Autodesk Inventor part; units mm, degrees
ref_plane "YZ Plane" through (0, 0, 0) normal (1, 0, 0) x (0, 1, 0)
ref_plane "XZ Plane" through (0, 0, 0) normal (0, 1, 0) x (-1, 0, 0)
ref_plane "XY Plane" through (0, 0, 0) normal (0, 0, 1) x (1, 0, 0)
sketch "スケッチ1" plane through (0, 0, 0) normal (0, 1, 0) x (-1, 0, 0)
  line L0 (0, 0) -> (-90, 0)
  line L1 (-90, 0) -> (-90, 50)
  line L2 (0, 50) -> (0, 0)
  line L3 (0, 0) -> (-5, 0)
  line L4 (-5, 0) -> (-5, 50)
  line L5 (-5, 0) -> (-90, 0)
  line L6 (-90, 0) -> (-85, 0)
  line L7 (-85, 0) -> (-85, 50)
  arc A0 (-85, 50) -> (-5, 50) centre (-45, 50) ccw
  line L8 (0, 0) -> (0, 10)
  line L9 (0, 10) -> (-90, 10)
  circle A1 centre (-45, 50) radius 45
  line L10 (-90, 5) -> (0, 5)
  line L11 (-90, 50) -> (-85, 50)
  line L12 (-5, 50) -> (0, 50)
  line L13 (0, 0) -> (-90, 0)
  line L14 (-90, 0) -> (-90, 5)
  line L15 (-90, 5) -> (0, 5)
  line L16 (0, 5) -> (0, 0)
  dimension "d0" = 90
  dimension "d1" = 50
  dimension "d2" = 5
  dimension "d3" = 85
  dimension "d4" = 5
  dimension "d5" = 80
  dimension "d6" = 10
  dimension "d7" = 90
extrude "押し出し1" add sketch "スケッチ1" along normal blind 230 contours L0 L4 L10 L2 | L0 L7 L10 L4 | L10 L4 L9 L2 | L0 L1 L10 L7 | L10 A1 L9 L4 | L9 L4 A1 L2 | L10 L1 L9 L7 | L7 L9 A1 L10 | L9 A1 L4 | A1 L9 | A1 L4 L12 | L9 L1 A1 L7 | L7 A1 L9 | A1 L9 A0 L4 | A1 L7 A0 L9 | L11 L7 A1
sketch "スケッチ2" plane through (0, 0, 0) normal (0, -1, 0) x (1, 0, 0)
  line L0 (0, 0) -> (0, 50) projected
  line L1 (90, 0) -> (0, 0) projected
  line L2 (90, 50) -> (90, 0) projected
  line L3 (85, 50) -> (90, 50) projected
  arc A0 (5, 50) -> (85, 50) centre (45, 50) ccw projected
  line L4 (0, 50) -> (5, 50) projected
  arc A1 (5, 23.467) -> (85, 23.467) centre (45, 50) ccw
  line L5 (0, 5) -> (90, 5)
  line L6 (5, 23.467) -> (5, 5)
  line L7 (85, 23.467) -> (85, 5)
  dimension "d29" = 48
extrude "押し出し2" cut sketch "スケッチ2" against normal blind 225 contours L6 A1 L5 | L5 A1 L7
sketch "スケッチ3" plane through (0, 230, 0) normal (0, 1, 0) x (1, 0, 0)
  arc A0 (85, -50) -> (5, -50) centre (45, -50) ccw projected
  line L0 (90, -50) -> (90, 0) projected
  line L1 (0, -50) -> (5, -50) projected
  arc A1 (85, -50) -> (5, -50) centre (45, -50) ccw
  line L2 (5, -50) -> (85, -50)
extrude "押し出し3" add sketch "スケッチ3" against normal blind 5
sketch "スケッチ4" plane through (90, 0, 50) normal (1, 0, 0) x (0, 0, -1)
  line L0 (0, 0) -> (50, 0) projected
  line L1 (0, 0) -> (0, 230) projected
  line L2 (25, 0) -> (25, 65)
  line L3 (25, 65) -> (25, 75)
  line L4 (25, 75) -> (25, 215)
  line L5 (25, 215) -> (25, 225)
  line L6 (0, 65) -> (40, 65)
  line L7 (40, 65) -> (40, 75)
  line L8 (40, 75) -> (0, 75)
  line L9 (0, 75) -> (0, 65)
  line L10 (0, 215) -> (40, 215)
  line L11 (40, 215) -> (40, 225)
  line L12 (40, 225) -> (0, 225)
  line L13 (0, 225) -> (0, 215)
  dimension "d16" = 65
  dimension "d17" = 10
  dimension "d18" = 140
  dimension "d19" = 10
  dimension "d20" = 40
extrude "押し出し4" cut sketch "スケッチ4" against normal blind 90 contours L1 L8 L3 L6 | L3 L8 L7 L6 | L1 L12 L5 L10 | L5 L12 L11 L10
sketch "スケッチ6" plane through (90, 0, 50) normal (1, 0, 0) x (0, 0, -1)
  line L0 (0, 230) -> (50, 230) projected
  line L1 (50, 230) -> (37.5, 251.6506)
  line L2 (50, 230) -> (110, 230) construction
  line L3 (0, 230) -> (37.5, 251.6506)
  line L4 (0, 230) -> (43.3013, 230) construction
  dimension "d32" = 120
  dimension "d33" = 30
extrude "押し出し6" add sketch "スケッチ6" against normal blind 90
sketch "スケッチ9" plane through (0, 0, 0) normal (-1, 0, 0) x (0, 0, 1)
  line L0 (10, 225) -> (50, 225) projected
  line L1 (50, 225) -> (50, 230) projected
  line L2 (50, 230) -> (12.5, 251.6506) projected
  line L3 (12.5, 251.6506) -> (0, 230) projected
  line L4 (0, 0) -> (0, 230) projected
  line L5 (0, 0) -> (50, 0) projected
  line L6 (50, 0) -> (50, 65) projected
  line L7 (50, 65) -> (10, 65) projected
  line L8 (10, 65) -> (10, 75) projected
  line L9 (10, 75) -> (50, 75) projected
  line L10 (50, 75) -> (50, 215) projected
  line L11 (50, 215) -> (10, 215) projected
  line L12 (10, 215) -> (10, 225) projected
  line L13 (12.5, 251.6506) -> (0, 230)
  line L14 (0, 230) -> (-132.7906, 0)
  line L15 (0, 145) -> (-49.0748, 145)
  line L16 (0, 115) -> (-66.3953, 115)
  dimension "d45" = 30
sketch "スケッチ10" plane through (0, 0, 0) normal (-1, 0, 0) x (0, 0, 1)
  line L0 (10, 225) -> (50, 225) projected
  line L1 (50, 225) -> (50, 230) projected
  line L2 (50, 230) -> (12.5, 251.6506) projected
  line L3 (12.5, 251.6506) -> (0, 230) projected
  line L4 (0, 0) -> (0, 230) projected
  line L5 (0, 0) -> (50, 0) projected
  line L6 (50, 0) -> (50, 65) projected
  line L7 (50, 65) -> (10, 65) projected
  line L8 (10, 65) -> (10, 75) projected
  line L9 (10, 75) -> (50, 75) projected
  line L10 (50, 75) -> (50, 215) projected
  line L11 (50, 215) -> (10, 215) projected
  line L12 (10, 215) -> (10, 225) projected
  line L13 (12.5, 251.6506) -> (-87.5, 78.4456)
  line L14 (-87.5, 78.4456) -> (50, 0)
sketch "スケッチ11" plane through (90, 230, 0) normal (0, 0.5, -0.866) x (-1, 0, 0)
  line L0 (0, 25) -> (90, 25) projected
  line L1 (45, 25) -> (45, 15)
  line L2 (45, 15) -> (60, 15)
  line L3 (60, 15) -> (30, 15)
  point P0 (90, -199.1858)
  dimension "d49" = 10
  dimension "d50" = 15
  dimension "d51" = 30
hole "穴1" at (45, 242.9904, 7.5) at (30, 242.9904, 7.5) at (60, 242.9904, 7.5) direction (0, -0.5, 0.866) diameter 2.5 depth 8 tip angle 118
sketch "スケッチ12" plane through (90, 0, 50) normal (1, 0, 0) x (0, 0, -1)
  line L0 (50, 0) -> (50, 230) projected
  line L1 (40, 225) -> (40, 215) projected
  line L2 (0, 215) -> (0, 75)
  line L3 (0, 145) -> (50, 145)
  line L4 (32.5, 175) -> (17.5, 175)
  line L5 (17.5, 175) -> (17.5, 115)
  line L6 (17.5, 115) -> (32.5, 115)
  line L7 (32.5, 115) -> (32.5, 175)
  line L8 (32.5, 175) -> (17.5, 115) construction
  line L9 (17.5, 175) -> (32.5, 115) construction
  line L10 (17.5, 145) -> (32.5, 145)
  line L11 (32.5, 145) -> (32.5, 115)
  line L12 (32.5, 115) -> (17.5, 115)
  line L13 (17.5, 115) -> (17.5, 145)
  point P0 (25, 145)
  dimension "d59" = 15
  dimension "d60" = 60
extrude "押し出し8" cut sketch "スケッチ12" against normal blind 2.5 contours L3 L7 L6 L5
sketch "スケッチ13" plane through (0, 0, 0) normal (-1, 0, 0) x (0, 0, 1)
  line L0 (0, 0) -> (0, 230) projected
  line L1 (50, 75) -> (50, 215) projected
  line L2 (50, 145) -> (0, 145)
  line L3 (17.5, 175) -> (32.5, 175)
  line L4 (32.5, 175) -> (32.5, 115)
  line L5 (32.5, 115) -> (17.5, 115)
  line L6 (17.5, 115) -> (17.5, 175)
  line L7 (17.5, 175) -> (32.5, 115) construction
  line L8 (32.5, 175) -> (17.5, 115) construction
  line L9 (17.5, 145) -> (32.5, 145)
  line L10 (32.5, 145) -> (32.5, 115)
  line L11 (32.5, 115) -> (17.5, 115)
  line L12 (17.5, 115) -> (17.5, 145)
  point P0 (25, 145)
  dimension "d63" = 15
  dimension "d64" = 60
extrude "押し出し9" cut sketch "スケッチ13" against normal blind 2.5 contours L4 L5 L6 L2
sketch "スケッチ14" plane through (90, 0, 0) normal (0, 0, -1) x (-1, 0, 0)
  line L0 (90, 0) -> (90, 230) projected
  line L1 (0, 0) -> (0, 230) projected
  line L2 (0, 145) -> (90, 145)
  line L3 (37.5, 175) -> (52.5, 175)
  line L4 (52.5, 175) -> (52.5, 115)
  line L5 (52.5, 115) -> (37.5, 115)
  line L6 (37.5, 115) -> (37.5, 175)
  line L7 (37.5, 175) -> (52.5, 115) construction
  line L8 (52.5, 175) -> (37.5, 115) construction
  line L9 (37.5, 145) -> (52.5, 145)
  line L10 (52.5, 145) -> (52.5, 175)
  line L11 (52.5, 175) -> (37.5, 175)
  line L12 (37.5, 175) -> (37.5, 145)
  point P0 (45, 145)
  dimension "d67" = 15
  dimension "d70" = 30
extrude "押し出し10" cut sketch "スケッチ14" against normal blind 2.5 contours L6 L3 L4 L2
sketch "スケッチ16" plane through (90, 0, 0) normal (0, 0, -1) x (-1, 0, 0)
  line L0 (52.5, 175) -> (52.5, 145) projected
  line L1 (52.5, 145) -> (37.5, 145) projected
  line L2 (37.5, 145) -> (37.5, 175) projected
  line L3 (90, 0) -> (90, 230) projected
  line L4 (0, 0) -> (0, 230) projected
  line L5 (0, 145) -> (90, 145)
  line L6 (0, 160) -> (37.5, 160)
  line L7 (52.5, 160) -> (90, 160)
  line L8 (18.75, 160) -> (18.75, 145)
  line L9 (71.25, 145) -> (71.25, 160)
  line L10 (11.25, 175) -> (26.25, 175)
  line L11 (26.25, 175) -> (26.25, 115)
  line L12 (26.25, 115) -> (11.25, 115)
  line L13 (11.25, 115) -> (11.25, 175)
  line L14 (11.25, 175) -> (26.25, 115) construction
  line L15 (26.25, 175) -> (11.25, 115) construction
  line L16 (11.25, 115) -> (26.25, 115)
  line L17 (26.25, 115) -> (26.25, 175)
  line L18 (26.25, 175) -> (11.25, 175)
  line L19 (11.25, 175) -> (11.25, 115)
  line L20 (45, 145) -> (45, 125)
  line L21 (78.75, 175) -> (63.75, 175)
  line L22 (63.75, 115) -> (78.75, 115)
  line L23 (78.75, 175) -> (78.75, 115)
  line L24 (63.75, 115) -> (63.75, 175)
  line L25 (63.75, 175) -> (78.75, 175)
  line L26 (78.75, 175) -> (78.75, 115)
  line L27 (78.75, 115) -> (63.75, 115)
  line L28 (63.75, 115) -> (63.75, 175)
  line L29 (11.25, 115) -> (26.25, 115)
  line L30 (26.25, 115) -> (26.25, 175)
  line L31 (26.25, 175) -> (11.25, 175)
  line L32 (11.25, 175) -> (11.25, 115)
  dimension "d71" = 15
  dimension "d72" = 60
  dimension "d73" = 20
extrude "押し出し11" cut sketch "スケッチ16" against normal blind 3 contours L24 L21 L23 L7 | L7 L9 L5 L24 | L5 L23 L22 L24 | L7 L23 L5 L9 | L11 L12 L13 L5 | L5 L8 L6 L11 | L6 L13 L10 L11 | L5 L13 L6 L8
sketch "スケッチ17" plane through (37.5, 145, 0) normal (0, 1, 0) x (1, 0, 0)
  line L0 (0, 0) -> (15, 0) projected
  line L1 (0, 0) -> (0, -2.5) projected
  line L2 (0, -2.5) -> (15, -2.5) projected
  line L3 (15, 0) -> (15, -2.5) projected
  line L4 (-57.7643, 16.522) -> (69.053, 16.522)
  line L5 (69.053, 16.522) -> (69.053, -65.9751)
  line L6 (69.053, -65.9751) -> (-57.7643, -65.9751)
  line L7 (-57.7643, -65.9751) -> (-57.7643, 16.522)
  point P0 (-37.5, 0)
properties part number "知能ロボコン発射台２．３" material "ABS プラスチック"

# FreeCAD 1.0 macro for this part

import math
import FreeCAD as App
import Part
import Sketcher
Q = App.Units.Quantity

doc = App.newDocument("Part")
body = doc.addObject("PartDesign::Body", "Body")

sketch1 = body.newObject("Sketcher::SketchObject", "Sketch")
sketch1.AttachmentSupport = (doc.getObject("XZ_Plane"), [""])
sketch1.MapMode = "FlatFace"
sketch1.addGeometry([
    Part.LineSegment(App.Vector(0, 0, 0), App.Vector(0, 50, 0)),
    Part.LineSegment(App.Vector(0, 50, 0), App.Vector(5, 50, 0)),
    Part.ArcOfCircle(Part.Circle(App.Vector(45, 50, 0), App.Vector(0, 0, 1), 40), math.radians(180), math.radians(360)),
    Part.LineSegment(App.Vector(85, 50, 0), App.Vector(90, 50, 0)),
    Part.LineSegment(App.Vector(90, 50, 0), App.Vector(90, 0, 0)),
    Part.LineSegment(App.Vector(90, 0, 0), App.Vector(0, 0, 0)),
], False)
sketch1.addConstraint([
    Sketcher.Constraint("Coincident", 0, 2, 1, 1),
    Sketcher.Constraint("Coincident", 1, 2, 2, 1),
    Sketcher.Constraint("Coincident", 2, 2, 3, 1),
    Sketcher.Constraint("Coincident", 3, 2, 4, 1),
    Sketcher.Constraint("Coincident", 4, 2, 5, 1),
    Sketcher.Constraint("Coincident", 5, 2, 0, 1),
    Sketcher.Constraint("Vertical", 0),
    Sketcher.Constraint("Horizontal", 1),
    Sketcher.Constraint("Horizontal", 3),
    Sketcher.Constraint("Vertical", 4),
    Sketcher.Constraint("Horizontal", 5),
    Sketcher.Constraint("Coincident", 5, 2, -1, 1),
    Sketcher.Constraint("Horizontal", 2, 3, 0, 2),
    Sketcher.Constraint("Horizontal", 1, 2, 2, 2),
    Sketcher.Constraint("Equal", 1, 3),
    Sketcher.Constraint("Radius", 2, Q("40 mm")),
    Sketcher.Constraint("DistanceX", 1, 1, 1, 2, Q("5 mm")),
    Sketcher.Constraint("DistanceY", 0, 1, 0, 2, Q("50 mm")),
])
pad1 = body.newObject("PartDesign::Pad", "Pad")
pad1.Profile = sketch1
pad1.Length = 230
pad1.Reversed = True

sketch2 = body.newObject("Sketcher::SketchObject", "Sketch001")
sketch2.AttachmentSupport = (doc.getObject("XZ_Plane"), [""])
sketch2.MapMode = "FlatFace"
sketch2.addGeometry([
    Part.LineSegment(App.Vector(5, 23, 0), App.Vector(5, 5, 0)),
    Part.LineSegment(App.Vector(5, 5, 0), App.Vector(28, 5, 0)),
    Part.ArcOfCircle(Part.Circle(App.Vector(45, 50, 0), App.Vector(0, 0, 1), 48), math.radians(-146), math.radians(-110)),
    Part.LineSegment(App.Vector(62, 5, 0), App.Vector(85, 5, 0)),
    Part.LineSegment(App.Vector(85, 5, 0), App.Vector(85, 23, 0)),
    Part.ArcOfCircle(Part.Circle(App.Vector(45, 50, 0), App.Vector(0, 0, 1), 48), math.radians(-70), math.radians(-34)),
], False)
sketch2.addConstraint([
    Sketcher.Constraint("Coincident", 0, 2, 1, 1),
    Sketcher.Constraint("Coincident", 1, 2, 2, 2),
    Sketcher.Constraint("Coincident", 2, 1, 0, 1),
    Sketcher.Constraint("Coincident", 3, 2, 4, 1),
    Sketcher.Constraint("Coincident", 4, 2, 5, 2),
    Sketcher.Constraint("Coincident", 5, 1, 3, 1),
    Sketcher.Constraint("Vertical", 0),
    Sketcher.Constraint("Horizontal", 1),
    Sketcher.Constraint("Horizontal", 3),
    Sketcher.Constraint("Vertical", 4),
    Sketcher.Constraint("Coincident", 5, 3, 2, 3),
    Sketcher.Constraint("Equal", 2, 5),
    Sketcher.Constraint("Horizontal", 1, 2, 3, 2),
    Sketcher.Constraint("Horizontal", 2, 1, 4, 2),
    Sketcher.Constraint("Radius", 2, Q("48 mm")),
    Sketcher.Constraint("DistanceX", -1, 1, 2, 3, Q("45 mm")),
    Sketcher.Constraint("DistanceY", -1, 1, 2, 3, Q("50 mm")),
    Sketcher.Constraint("DistanceX", -1, 1, 0, 2, Q("5 mm")),
    Sketcher.Constraint("DistanceY", -1, 1, 0, 2, Q("5 mm")),
])
pocket1 = body.newObject("PartDesign::Pocket", "Pocket")
pocket1.Profile = sketch2
pocket1.Length = 225

sketch3 = body.newObject("Sketcher::SketchObject", "Sketch002")
sketch3.AttachmentSupport = (doc.getObject("XZ_Plane"), [""])
sketch3.MapMode = "FlatFace"
sketch3.AttachmentOffset = App.Placement(App.Vector(0, 0, -230), App.Rotation())
sketch3.addGeometry([
    Part.LineSegment(App.Vector(5, 50, 0), App.Vector(85, 50, 0)),
    Part.ArcOfCircle(Part.Circle(App.Vector(45, 50, 0), App.Vector(0, 0, 1), 40), math.radians(180), math.radians(360)),
], False)
sketch3.addConstraint([
    Sketcher.Constraint("Coincident", 0, 1, 1, 1),
    Sketcher.Constraint("Coincident", 1, 2, 0, 2),
    Sketcher.Constraint("Horizontal", 0),
    Sketcher.Constraint("Horizontal", 1, 3, 0, 1),
    Sketcher.Constraint("Radius", 1, Q("40 mm")),
    Sketcher.Constraint("DistanceX", -1, 1, 1, 3, Q("45 mm")),
    Sketcher.Constraint("DistanceY", -1, 1, 1, 3, Q("50 mm")),
])
pad2 = body.newObject("PartDesign::Pad", "Pad001")
pad2.Profile = sketch3
pad2.Length = 5

sketch4 = body.newObject("Sketcher::SketchObject", "Sketch003")
sketch4.AttachmentSupport = (doc.getObject("YZ_Plane"), [""])
sketch4.MapMode = "FlatFace"
sketch4.AttachmentOffset = App.Placement(App.Vector(0, 0, 90), App.Rotation())
sketch4.addGeometry([
    Part.LineSegment(App.Vector(75, 50, 0), App.Vector(65, 50, 0)),
    Part.LineSegment(App.Vector(65, 50, 0), App.Vector(65, 10, 0)),
    Part.LineSegment(App.Vector(65, 10, 0), App.Vector(75, 10, 0)),
    Part.LineSegment(App.Vector(75, 10, 0), App.Vector(75, 50, 0)),
    Part.LineSegment(App.Vector(225, 50, 0), App.Vector(215, 50, 0)),
    Part.LineSegment(App.Vector(215, 50, 0), App.Vector(215, 10, 0)),
    Part.LineSegment(App.Vector(215, 10, 0), App.Vector(225, 10, 0)),
    Part.LineSegment(App.Vector(225, 10, 0), App.Vector(225, 50, 0)),
], False)
sketch4.addConstraint([
    Sketcher.Constraint("Coincident", 0, 2, 1, 1),
    Sketcher.Constraint("Coincident", 1, 2, 2, 1),
    Sketcher.Constraint("Coincident", 2, 2, 3, 1),
    Sketcher.Constraint("Coincident", 3, 2, 0, 1),
    Sketcher.Constraint("Coincident", 4, 2, 5, 1),
    Sketcher.Constraint("Coincident", 5, 2, 6, 1),
    Sketcher.Constraint("Coincident", 6, 2, 7, 1),
    Sketcher.Constraint("Coincident", 7, 2, 4, 1),
    Sketcher.Constraint("Horizontal", 0),
    Sketcher.Constraint("Vertical", 1),
    Sketcher.Constraint("Horizontal", 2),
    Sketcher.Constraint("Vertical", 3),
    Sketcher.Constraint("Horizontal", 4),
    Sketcher.Constraint("Vertical", 5),
    Sketcher.Constraint("Horizontal", 6),
    Sketcher.Constraint("Vertical", 7),
    Sketcher.Constraint("Horizontal", 3, 2, 4, 2),
    Sketcher.Constraint("Horizontal", 2, 2, 5, 2),
    Sketcher.Constraint("Equal", 2, 4),
    Sketcher.Constraint("DistanceX", 0, 2, 0, 1, Q("10 mm")),
    Sketcher.Constraint("DistanceY", 1, 2, 1, 1, Q("40 mm")),
    Sketcher.Constraint("DistanceX", -1, 1, 0, 2, Q("65 mm")),
    Sketcher.Constraint("DistanceY", -1, 1, 1, 2, Q("10 mm")),
    Sketcher.Constraint("DistanceX", 3, 2, 4, 2, Q("140 mm")),
])
pocket2 = body.newObject("PartDesign::Pocket", "Pocket001")
pocket2.Profile = sketch4
pocket2.Length = 90

sketch5 = body.newObject("Sketcher::SketchObject", "Sketch004")
sketch5.AttachmentSupport = (doc.getObject("YZ_Plane"), [""])
sketch5.MapMode = "FlatFace"
sketch5.AttachmentOffset = App.Placement(App.Vector(0, 0, 90), App.Rotation())
sketch5.addGeometry([
    Part.LineSegment(App.Vector(252, 12, 0), App.Vector(230, 50, 0)),
    Part.LineSegment(App.Vector(230, 50, 0), App.Vector(230, 0, 0)),
    Part.LineSegment(App.Vector(230, 0, 0), App.Vector(252, 12, 0)),
], False)
sketch5.addConstraint([
    Sketcher.Constraint("Coincident", 0, 2, 1, 1),
    Sketcher.Constraint("Coincident", 1, 2, 2, 1),
    Sketcher.Constraint("Coincident", 2, 2, 0, 1),
    Sketcher.Constraint("Vertical", 1),
    Sketcher.Constraint("PointOnObject", 1, 2, -1),
    Sketcher.Constraint("Perpendicular", 0, 2),
    Sketcher.Constraint("Angle", 0, Q("120 deg")),
    Sketcher.Constraint("DistanceY", 1, 2, 1, 1, Q("50 mm")),
    Sketcher.Constraint("DistanceX", -1, 1, 0, 2, Q("230 mm")),
])
pad3 = body.newObject("PartDesign::Pad", "Pad002")
pad3.Profile = sketch5
pad3.Length = 90
pad3.Reversed = True

sketch6 = body.newObject("Sketcher::SketchObject", "Sketch005")
sketch6.Placement = App.Placement(App.Vector(0, 57.500005, -99.59293), App.Rotation(App.Vector(0, 0.866025404, 0.5), App.Vector(1, 0, 0), App.Vector(0, 0.5, -0.866025404), "ZXY"))
sketch6.addGeometry([
    Part.Circle(App.Vector(214.2, 45, 0), App.Vector(0, 0, 1), 1.2),
    Part.Circle(App.Vector(214.2, 30, 0), App.Vector(0, 0, 1), 1.2),
    Part.Circle(App.Vector(214.2, 60, 0), App.Vector(0, 0, 1), 1.2),
], False)
sketch6.addConstraint([
    Sketcher.Constraint("Equal", 0, 1),
    Sketcher.Constraint("Equal", 1, 2),
    Sketcher.Constraint("Vertical", 0, 3, 1, 3),
    Sketcher.Constraint("Vertical", 1, 3, 2, 3),
    Sketcher.Constraint("Diameter", 0, Q("2.5 mm")),
    Sketcher.Constraint("DistanceY", -1, 1, 0, 3, Q("45 mm")),
    Sketcher.Constraint("DistanceY", -1, 1, 1, 3, Q("30 mm")),
    Sketcher.Constraint("DistanceY", -1, 1, 2, 3, Q("60 mm")),
    Sketcher.Constraint("DistanceX", -1, 1, 0, 3, Q("214.1859 mm")),
])
doc.recompute()
hole = body.newObject("PartDesign::Hole", "Hole")
hole.Profile = sketch6
hole.ThreadType = "None"
hole.Diameter = 2.5
hole.DepthType = "Dimension"
hole.Depth = 8
hole.DrillPoint = "Angled"
hole.DrillPointAngle = 118

sketch7 = body.newObject("Sketcher::SketchObject", "Sketch006")
sketch7.AttachmentSupport = (doc.getObject("YZ_Plane"), [""])
sketch7.MapMode = "FlatFace"
sketch7.AttachmentOffset = App.Placement(App.Vector(0, 0, 90), App.Rotation())
sketch7.addGeometry([
    Part.LineSegment(App.Vector(145, 18, 0), App.Vector(145, 32, 0)),
    Part.LineSegment(App.Vector(145, 32, 0), App.Vector(115, 32, 0)),
    Part.LineSegment(App.Vector(115, 32, 0), App.Vector(115, 18, 0)),
    Part.LineSegment(App.Vector(115, 18, 0), App.Vector(145, 18, 0)),
], False)
sketch7.addConstraint([
    Sketcher.Constraint("Coincident", 0, 2, 1, 1),
    Sketcher.Constraint("Coincident", 1, 2, 2, 1),
    Sketcher.Constraint("Coincident", 2, 2, 3, 1),
    Sketcher.Constraint("Coincident", 3, 2, 0, 1),
    Sketcher.Constraint("Vertical", 0),
    Sketcher.Constraint("Horizontal", 1),
    Sketcher.Constraint("Vertical", 2),
    Sketcher.Constraint("Horizontal", 3),
    Sketcher.Constraint("DistanceY", 0, 1, 0, 2, Q("15 mm")),
    Sketcher.Constraint("DistanceX", 1, 2, 1, 1, Q("30 mm")),
    Sketcher.Constraint("DistanceX", -1, 1, 0, 2, Q("145 mm")),
    Sketcher.Constraint("DistanceY", -1, 1, 0, 2, Q("32.5 mm")),
])
pocket3 = body.newObject("PartDesign::Pocket", "Pocket002")
pocket3.Profile = sketch7
pocket3.Length = 2.5

sketch8 = body.newObject("Sketcher::SketchObject", "Sketch007")
sketch8.AttachmentSupport = (doc.getObject("YZ_Plane"), [""])
sketch8.MapMode = "FlatFace"
sketch8.addGeometry([
    Part.LineSegment(App.Vector(115, 32, 0), App.Vector(145, 32, 0)),
    Part.LineSegment(App.Vector(145, 32, 0), App.Vector(145, 18, 0)),
    Part.LineSegment(App.Vector(145, 18, 0), App.Vector(115, 18, 0)),
    Part.LineSegment(App.Vector(115, 18, 0), App.Vector(115, 32, 0)),
], False)
sketch8.addConstraint([
    Sketcher.Constraint("Coincident", 0, 2, 1, 1),
    Sketcher.Constraint("Coincident", 1, 2, 2, 1),
    Sketcher.Constraint("Coincident", 2, 2, 3, 1),
    Sketcher.Constraint("Coincident", 3, 2, 0, 1),
    Sketcher.Constraint("Horizontal", 0),
    Sketcher.Constraint("Vertical", 1),
    Sketcher.Constraint("Horizontal", 2),
    Sketcher.Constraint("Vertical", 3),
    Sketcher.Constraint("DistanceY", 1, 2, 1, 1, Q("15 mm")),
    Sketcher.Constraint("DistanceX", 0, 1, 0, 2, Q("30 mm")),
    Sketcher.Constraint("DistanceX", -1, 1, 0, 2, Q("145 mm")),
    Sketcher.Constraint("DistanceY", -1, 1, 0, 2, Q("32.5 mm")),
])
pocket4 = body.newObject("PartDesign::Pocket", "Pocket003")
pocket4.Profile = sketch8
pocket4.Length = 2.5
pocket4.Reversed = True

sketch9 = body.newObject("Sketcher::SketchObject", "Sketch008")
sketch9.AttachmentSupport = (doc.getObject("XY_Plane"), [""])
sketch9.MapMode = "FlatFace"
sketch9.addGeometry([
    Part.LineSegment(App.Vector(52, 175, 0), App.Vector(52, 145, 0)),
    Part.LineSegment(App.Vector(52, 145, 0), App.Vector(38, 145, 0)),
    Part.LineSegment(App.Vector(38, 145, 0), App.Vector(38, 175, 0)),
    Part.LineSegment(App.Vector(38, 175, 0), App.Vector(52, 175, 0)),
], False)
sketch9.addConstraint([
    Sketcher.Constraint("Coincident", 0, 2, 1, 1),
    Sketcher.Constraint("Coincident", 1, 2, 2, 1),
    Sketcher.Constraint("Coincident", 2, 2, 3, 1),
    Sketcher.Constraint("Coincident", 3, 2, 0, 1),
    Sketcher.Constraint("Vertical", 0),
    Sketcher.Constraint("Horizontal", 1),
    Sketcher.Constraint("Vertical", 2),
    Sketcher.Constraint("Horizontal", 3),
    Sketcher.Constraint("DistanceX", 1, 2, 1, 1, Q("15 mm")),
    Sketcher.Constraint("DistanceY", 0, 2, 0, 1, Q("30 mm")),
    Sketcher.Constraint("DistanceY", -1, 1, 0, 2, Q("145 mm")),
    Sketcher.Constraint("DistanceX", -1, 1, 0, 2, Q("52.5 mm")),
])
pocket5 = body.newObject("PartDesign::Pocket", "Pocket004")
pocket5.Profile = sketch9
pocket5.Length = 2.5
pocket5.Reversed = True

sketch10 = body.newObject("Sketcher::SketchObject", "Sketch009")
sketch10.AttachmentSupport = (doc.getObject("XY_Plane"), [""])
sketch10.MapMode = "FlatFace"
sketch10.addGeometry([
    Part.LineSegment(App.Vector(26, 175, 0), App.Vector(26, 115, 0)),
    Part.LineSegment(App.Vector(26, 115, 0), App.Vector(11, 115, 0)),
    Part.LineSegment(App.Vector(11, 115, 0), App.Vector(11, 175, 0)),
    Part.LineSegment(App.Vector(11, 175, 0), App.Vector(26, 175, 0)),
    Part.LineSegment(App.Vector(64, 115, 0), App.Vector(64, 175, 0)),
    Part.LineSegment(App.Vector(64, 175, 0), App.Vector(79, 175, 0)),
    Part.LineSegment(App.Vector(79, 175, 0), App.Vector(79, 115, 0)),
    Part.LineSegment(App.Vector(79, 115, 0), App.Vector(64, 115, 0)),
], False)
sketch10.addConstraint([
    Sketcher.Constraint("Coincident", 0, 2, 1, 1),
    Sketcher.Constraint("Coincident", 1, 2, 2, 1),
    Sketcher.Constraint("Coincident", 2, 2, 3, 1),
    Sketcher.Constraint("Coincident", 3, 2, 0, 1),
    Sketcher.Constraint("Coincident", 4, 2, 5, 1),
    Sketcher.Constraint("Coincident", 5, 2, 6, 1),
    Sketcher.Constraint("Coincident", 6, 2, 7, 1),
    Sketcher.Constraint("Coincident", 7, 2, 4, 1),
    Sketcher.Constraint("Vertical", 0),
    Sketcher.Constraint("Horizontal", 1),
    Sketcher.Constraint("Vertical", 2),
    Sketcher.Constraint("Horizontal", 3),
    Sketcher.Constraint("Vertical", 4),
    Sketcher.Constraint("Horizontal", 5),
    Sketcher.Constraint("Vertical", 6),
    Sketcher.Constraint("Horizontal", 7),
    Sketcher.Constraint("Horizontal", 3, 2, 4, 2),
    Sketcher.Constraint("Horizontal", 1, 2, 6, 2),
    Sketcher.Constraint("Equal", 3, 5),
    Sketcher.Constraint("DistanceX", 1, 2, 1, 1, Q("15 mm")),
    Sketcher.Constraint("DistanceY", 0, 2, 0, 1, Q("60 mm")),
    Sketcher.Constraint("DistanceY", -1, 1, 0, 2, Q("115 mm")),
    Sketcher.Constraint("DistanceX", 3, 2, 4, 2, Q("37.5 mm")),
    Sketcher.Constraint("DistanceX", -1, 1, 0, 2, Q("26.25 mm")),
])
pocket6 = body.newObject("PartDesign::Pocket", "Pocket005")
pocket6.Profile = sketch10
pocket6.Length = 3
pocket6.Reversed = True

doc.recompute()
